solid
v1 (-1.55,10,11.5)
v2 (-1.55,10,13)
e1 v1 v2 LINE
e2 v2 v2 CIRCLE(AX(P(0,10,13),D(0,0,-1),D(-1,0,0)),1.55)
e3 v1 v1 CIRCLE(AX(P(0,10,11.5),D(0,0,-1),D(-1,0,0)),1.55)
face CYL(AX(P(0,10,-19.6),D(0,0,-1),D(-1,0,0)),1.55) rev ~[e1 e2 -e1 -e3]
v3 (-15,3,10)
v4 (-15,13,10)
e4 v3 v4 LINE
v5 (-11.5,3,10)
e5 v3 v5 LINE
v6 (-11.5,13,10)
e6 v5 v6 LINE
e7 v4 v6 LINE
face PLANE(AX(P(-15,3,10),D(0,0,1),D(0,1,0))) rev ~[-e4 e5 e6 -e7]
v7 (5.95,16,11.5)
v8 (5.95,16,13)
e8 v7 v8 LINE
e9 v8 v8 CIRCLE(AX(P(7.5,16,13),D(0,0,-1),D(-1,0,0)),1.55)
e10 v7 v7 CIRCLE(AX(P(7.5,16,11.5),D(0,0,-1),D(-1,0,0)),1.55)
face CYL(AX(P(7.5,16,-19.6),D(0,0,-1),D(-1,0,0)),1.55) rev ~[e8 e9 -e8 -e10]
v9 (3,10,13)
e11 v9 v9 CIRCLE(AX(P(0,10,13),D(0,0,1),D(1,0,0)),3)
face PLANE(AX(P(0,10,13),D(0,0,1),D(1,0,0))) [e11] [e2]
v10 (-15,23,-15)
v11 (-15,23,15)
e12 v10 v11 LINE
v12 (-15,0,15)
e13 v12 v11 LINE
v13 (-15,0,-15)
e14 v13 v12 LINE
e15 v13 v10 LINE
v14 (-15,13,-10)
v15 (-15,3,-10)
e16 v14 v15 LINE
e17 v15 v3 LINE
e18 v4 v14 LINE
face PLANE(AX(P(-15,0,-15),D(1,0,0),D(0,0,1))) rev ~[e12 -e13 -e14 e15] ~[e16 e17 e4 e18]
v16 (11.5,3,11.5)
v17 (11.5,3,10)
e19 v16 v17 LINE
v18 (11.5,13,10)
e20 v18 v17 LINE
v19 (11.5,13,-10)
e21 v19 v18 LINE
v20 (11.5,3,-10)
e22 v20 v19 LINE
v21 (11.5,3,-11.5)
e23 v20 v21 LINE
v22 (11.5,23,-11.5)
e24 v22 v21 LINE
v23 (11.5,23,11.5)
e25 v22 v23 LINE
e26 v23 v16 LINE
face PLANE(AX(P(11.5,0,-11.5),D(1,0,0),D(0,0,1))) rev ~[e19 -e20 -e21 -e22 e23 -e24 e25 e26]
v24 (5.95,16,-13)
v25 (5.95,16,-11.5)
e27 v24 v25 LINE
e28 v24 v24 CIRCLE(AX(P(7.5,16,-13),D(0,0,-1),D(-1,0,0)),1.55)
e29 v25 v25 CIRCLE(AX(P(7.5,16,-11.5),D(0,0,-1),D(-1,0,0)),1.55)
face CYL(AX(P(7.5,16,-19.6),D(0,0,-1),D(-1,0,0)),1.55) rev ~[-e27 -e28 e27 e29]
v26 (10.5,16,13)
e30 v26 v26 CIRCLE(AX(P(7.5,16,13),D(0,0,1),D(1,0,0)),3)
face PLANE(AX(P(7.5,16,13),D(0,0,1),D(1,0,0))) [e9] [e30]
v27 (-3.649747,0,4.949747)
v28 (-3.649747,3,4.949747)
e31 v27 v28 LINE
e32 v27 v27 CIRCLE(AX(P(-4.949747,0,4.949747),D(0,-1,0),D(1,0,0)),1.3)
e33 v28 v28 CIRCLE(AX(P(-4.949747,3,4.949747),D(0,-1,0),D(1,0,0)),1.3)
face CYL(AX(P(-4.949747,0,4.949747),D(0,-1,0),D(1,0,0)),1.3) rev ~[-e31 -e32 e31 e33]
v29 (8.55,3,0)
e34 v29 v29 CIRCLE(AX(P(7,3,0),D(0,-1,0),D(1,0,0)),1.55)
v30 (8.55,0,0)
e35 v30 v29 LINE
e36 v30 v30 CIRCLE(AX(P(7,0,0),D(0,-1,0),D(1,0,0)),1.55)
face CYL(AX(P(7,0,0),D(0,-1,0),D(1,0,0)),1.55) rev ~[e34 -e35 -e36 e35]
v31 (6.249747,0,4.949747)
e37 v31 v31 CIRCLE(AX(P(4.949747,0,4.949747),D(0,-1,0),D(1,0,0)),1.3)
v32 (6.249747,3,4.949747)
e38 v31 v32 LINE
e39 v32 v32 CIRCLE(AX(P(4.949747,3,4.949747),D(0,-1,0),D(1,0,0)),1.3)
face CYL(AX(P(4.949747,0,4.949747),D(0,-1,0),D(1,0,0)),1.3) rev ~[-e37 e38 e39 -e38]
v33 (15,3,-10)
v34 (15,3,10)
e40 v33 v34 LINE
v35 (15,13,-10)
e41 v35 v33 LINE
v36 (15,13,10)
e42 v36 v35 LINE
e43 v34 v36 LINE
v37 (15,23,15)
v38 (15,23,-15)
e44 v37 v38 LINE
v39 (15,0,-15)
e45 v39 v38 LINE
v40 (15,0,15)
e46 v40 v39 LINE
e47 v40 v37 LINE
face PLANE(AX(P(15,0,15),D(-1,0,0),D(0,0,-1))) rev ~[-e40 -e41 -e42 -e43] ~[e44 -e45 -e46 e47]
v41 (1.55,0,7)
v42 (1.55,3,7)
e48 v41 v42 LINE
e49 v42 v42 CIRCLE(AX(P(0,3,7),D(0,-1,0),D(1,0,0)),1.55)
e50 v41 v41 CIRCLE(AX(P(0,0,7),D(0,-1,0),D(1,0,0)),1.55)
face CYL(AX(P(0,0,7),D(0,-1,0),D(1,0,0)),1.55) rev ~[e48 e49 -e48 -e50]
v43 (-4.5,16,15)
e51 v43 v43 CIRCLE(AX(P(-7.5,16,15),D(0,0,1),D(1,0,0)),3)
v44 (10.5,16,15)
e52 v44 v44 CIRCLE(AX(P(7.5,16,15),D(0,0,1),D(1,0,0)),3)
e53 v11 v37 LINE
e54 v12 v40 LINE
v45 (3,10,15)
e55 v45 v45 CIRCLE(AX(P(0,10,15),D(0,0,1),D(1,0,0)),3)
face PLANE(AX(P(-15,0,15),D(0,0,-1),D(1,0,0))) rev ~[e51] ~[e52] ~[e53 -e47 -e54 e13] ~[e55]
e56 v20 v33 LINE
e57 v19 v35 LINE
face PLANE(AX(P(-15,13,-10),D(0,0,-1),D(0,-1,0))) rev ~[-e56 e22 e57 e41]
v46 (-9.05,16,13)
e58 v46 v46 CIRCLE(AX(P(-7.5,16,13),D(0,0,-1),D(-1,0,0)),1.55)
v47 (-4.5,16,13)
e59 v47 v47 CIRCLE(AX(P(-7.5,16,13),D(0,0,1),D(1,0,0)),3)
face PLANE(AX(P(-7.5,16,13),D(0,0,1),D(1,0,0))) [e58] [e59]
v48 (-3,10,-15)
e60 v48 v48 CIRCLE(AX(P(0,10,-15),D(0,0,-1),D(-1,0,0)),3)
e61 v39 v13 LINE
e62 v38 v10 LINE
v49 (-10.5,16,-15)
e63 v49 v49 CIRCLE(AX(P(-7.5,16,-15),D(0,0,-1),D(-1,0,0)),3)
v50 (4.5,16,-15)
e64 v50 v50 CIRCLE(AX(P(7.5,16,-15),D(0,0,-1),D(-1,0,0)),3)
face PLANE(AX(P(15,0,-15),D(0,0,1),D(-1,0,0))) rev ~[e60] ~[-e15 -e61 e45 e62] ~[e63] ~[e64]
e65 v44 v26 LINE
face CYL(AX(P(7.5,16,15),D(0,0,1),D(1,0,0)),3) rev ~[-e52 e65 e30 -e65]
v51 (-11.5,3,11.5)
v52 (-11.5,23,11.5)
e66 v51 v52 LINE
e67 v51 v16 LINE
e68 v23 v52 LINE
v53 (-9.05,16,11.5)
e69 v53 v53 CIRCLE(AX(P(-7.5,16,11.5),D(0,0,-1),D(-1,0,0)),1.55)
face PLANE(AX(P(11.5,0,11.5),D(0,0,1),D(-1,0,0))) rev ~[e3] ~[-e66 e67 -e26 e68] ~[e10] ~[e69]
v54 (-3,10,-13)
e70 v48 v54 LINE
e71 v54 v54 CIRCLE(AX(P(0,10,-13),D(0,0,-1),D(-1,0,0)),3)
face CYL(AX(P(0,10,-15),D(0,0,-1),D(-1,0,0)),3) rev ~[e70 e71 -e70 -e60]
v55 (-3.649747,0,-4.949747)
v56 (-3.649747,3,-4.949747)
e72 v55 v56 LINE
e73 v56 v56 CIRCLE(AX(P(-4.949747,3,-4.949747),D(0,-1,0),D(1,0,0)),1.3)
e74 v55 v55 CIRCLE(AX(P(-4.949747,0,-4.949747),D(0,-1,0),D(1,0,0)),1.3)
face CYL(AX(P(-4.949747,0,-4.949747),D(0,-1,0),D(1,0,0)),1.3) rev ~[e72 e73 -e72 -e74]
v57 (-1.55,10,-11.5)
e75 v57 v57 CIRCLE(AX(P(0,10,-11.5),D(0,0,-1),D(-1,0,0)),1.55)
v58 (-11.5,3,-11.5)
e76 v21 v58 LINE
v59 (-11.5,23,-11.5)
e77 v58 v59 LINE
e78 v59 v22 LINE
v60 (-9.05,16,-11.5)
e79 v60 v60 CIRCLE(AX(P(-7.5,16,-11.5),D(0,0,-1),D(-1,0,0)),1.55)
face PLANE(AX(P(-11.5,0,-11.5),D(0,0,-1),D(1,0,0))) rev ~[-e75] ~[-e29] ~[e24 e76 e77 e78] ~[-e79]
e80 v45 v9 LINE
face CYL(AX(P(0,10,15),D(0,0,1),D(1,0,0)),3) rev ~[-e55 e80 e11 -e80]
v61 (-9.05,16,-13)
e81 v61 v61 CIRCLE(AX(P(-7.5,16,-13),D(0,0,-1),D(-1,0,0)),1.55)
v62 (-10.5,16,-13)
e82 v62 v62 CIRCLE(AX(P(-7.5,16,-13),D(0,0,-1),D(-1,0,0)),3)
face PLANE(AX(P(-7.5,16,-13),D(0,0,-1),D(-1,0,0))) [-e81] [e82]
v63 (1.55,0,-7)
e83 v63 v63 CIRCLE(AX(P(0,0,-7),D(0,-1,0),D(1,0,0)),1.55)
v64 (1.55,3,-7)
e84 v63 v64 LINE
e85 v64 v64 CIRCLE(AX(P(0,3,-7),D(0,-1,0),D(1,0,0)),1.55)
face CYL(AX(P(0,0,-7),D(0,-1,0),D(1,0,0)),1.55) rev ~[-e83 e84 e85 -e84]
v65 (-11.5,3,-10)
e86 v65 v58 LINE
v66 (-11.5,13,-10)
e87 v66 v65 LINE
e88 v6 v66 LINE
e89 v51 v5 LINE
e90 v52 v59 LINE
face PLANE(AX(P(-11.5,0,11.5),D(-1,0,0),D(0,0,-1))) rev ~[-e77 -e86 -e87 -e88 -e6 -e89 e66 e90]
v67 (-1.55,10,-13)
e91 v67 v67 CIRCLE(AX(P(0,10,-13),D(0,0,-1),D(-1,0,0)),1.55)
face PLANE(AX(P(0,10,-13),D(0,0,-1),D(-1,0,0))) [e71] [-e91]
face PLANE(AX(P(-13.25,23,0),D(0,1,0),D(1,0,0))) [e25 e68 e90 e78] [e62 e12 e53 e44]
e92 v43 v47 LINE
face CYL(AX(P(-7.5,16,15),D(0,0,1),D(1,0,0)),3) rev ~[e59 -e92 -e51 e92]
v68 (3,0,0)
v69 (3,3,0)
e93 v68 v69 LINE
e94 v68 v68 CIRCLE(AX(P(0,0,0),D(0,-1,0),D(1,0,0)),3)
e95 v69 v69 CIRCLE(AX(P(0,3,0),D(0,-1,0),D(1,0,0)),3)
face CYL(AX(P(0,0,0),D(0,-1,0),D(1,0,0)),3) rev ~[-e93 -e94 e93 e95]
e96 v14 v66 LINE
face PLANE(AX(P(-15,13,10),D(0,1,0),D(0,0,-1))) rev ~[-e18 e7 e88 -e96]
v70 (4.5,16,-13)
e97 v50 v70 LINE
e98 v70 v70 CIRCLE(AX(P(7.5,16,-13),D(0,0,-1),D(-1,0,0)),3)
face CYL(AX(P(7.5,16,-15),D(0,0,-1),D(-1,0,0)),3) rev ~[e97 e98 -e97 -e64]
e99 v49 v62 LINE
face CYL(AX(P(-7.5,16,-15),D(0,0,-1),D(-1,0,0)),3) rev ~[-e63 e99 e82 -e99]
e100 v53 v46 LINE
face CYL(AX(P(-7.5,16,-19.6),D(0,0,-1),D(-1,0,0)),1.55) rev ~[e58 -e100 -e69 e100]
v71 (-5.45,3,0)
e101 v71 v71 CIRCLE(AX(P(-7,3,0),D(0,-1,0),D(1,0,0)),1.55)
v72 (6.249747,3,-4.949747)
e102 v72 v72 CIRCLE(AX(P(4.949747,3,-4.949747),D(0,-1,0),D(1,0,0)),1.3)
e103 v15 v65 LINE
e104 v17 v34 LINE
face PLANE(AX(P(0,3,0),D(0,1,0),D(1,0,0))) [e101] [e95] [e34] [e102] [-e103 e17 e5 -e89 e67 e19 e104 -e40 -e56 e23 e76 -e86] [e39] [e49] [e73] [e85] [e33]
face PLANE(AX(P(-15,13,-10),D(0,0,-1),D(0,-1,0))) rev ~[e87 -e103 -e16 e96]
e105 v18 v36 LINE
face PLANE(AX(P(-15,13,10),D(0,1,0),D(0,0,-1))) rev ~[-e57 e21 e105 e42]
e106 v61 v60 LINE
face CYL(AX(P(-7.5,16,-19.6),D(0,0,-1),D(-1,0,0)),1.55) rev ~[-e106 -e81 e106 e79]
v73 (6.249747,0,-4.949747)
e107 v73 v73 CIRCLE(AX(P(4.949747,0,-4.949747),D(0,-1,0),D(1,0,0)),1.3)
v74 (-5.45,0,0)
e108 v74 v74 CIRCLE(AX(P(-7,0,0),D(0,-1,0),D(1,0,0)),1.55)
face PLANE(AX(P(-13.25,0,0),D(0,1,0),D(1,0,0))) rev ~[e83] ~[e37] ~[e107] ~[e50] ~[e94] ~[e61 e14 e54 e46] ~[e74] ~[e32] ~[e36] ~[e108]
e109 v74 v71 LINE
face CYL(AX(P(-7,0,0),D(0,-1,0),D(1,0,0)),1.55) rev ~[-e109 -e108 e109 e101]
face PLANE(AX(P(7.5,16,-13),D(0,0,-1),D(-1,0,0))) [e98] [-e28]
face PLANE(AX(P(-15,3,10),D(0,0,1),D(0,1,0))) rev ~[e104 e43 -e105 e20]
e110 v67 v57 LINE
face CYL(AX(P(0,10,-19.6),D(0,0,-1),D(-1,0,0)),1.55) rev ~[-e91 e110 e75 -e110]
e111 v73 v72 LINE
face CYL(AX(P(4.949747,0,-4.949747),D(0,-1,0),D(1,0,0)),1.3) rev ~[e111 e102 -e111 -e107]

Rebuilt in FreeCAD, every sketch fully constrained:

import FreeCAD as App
import Part
import Sketcher

V = App.Vector


def add_polygon(sketch, points):
    """Adds a closed chain of lines whose ends are joined by coincident constraints."""
    first, n = sketch.GeometryCount, len(points)
    for a, b in zip(points, points[1:] + points[:1]):
        sketch.addGeometry(Part.LineSegment(App.Vector(*a, 0), App.Vector(*b, 0)), False)
    for i in range(n):
        sketch.addConstraint(Sketcher.Constraint("Coincident", first + i, 2, first + (i + 1) % n, 1))

doc = App.newDocument("Part")
body = doc.addObject("PartDesign::Body", "Body")

sketch1 = body.newObject("Sketcher::SketchObject", "Sketch")
sketch1.AttachmentSupport = (doc.getObject("XZ_Plane"), [""])
sketch1.MapMode = "FlatFace"
add_polygon(sketch1, [(-12, -15), (-12, 15), (12, 15), (12, -15)])
sketch1.addConstraint(Sketcher.Constraint("Vertical", 0))
sketch1.addConstraint(Sketcher.Constraint("Horizontal", 1))
sketch1.addConstraint(Sketcher.Constraint("Vertical", 2))
sketch1.addConstraint(Sketcher.Constraint("Horizontal", 3))
sketch1.addConstraint(Sketcher.Constraint("Symmetric", 0, 2, 2, 2, -1, 1))
sketch1.addConstraint(Sketcher.Constraint("DistanceX", 1, 1, 1, 2, 23.0))
sketch1.addConstraint(Sketcher.Constraint("DistanceY", 0, 1, 0, 2, 30.0))
pad1 = body.newObject("PartDesign::Pad", "Pad")
pad1.Profile = sketch1
pad1.Length = 3
pad1.Reversed = True
body2 = doc.addObject("PartDesign::Body", "Body001")

sketch2 = body2.newObject("Sketcher::SketchObject", "Sketch001")
sketch2.AttachmentSupport = (doc.getObject("XZ_Plane001"), [""])
sketch2.MapMode = "FlatFace"
add_polygon(sketch2, [(11.5, 15), (11.5, 11.5), (-11.5, 11.5), (-11.5, 15)])
sketch2.addConstraint(Sketcher.Constraint("Vertical", 0))
sketch2.addConstraint(Sketcher.Constraint("Horizontal", 1))
sketch2.addConstraint(Sketcher.Constraint("Vertical", 2))
sketch2.addConstraint(Sketcher.Constraint("Horizontal", 3))
sketch2.addConstraint(Sketcher.Constraint("DistanceX", 1, 2, 1, 1, 23.0))
sketch2.addConstraint(Sketcher.Constraint("DistanceY", 0, 2, 0, 1, 3.5))
sketch2.addConstraint(Sketcher.Constraint("DistanceY", -1, 1, 2, 2, 15.0))
sketch2.addConstraint(Sketcher.Constraint("DistanceX", -1, 1, 0, 2, 11.5))
pad2 = body2.newObject("PartDesign::Pad", "Pad001")
pad2.Profile = sketch2
pad2.Length = 18
pad2.Reversed = True
body3 = doc.addObject("PartDesign::Body", "Body002")

sketch3 = body3.newObject("Sketcher::SketchObject", "Sketch002")
sketch3.AttachmentSupport = (doc.getObject("XZ_Plane002"), [""])
sketch3.MapMode = "FlatFace"
add_polygon(sketch3, [(-11.5, -11.5), (11.5, -11.5), (11.5, -15), (-11.5, -15)])
sketch3.addConstraint(Sketcher.Constraint("Horizontal", 0))
sketch3.addConstraint(Sketcher.Constraint("Vertical", 1))
sketch3.addConstraint(Sketcher.Constraint("Horizontal", 2))
sketch3.addConstraint(Sketcher.Constraint("Vertical", 3))
sketch3.addConstraint(Sketcher.Constraint("DistanceX", 0, 1, 0, 2, 23.0))
sketch3.addConstraint(Sketcher.Constraint("DistanceY", 1, 2, 1, 1, 3.5))
sketch3.addConstraint(Sketcher.Constraint("DistanceY", 1, 2, -1, 1, 15.0))
sketch3.addConstraint(Sketcher.Constraint("DistanceX", -1, 1, 0, 2, 11.5))
pad3 = body3.newObject("PartDesign::Pad", "Pad002")
pad3.Profile = sketch3
pad3.Length = 18
pad3.Reversed = True
doc.recompute()

boolean = body.newObject("PartDesign::Boolean", "Boolean")
boolean.Type = "Fuse"
boolean.addObjects([body2])
doc.recompute()

boolean2 = body.newObject("PartDesign::Boolean", "Boolean001")
boolean2.Type = "Fuse"
boolean2.addObjects([body3])

sketch4 = body.newObject("Sketcher::SketchObject", "Sketch003")
sketch4.AttachmentSupport = (doc.getObject("XZ_Plane"), [""])
sketch4.MapMode = "FlatFace"
add_polygon(sketch4, [(15, -15), (-15, -15), (-15, 15), (15, 15)])
add_polygon(sketch4, [(12, 12), (-12, 12), (-12, -12), (12, -12)])
sketch4.addConstraint(Sketcher.Constraint("Horizontal", 0))
sketch4.addConstraint(Sketcher.Constraint("Vertical", 1))
sketch4.addConstraint(Sketcher.Constraint("Horizontal", 2))
sketch4.addConstraint(Sketcher.Constraint("Vertical", 3))
sketch4.addConstraint(Sketcher.Constraint("Horizontal", 4))
sketch4.addConstraint(Sketcher.Constraint("Vertical", 5))
sketch4.addConstraint(Sketcher.Constraint("Horizontal", 6))
sketch4.addConstraint(Sketcher.Constraint("Vertical", 7))
sketch4.addConstraint(Sketcher.Constraint("Symmetric", 0, 2, 2, 2, -1, 1))
sketch4.addConstraint(Sketcher.Constraint("Symmetric", 4, 2, 6, 2, -1, 1))
sketch4.addConstraint(Sketcher.Constraint("Equal", 2, 1))
sketch4.addConstraint(Sketcher.Constraint("Equal", 6, 5))
sketch4.addConstraint(Sketcher.Constraint("DistanceX", 0, 2, 0, 1, 30.0))
sketch4.addConstraint(Sketcher.Constraint("DistanceX", 4, 2, 4, 1, 23.0))
pad4 = body.newObject("PartDesign::Pad", "Pad003")
pad4.Profile = sketch4
pad4.Length = 23
pad4.Reversed = True

sketch5 = body.newObject("Sketcher::SketchObject", "Sketch004")
sketch5.AttachmentSupport = (doc.getObject("XY_Plane"), [""])
sketch5.MapMode = "FlatFace"
sketch5.AttachmentOffset = App.Placement(V(0, 0, -19.6), App.Rotation())
sketch5.addGeometry(Part.Circle(V(0, 10, 0), V(0, 0, 1), 1.6), False)
sketch5.addGeometry(Part.Circle(V(7.5, 16, 0), V(0, 0, 1), 1.6), False)
sketch5.addGeometry(Part.Circle(V(-7.5, 16, 0), V(0, 0, 1), 1.6), False)
sketch5.addConstraint(Sketcher.Constraint("Equal", 0, 1))
sketch5.addConstraint(Sketcher.Constraint("Equal", 1, 2))
sketch5.addConstraint(Sketcher.Constraint("Symmetric", 1, 3, 2, 3, -2))
sketch5.addConstraint(Sketcher.Constraint("PointOnObject", 0, 3, -2))
sketch5.addConstraint(Sketcher.Constraint("Diameter", 0, 3.1))
sketch5.addConstraint(Sketcher.Constraint("DistanceY", -1, 1, 0, 3, 10.0))
sketch5.addConstraint(Sketcher.Constraint("DistanceY", -1, 1, 1, 3, 16.0))
sketch5.addConstraint(Sketcher.Constraint("DistanceX", 2, 3, 1, 3, 15.0))
pocket1 = body.newObject("PartDesign::Pocket", "Pocket")
pocket1.Profile = sketch5
pocket1.Type = "ThroughAll"
pocket1.Reversed = True

sketch6 = body.newObject("Sketcher::SketchObject", "Sketch005")
sketch6.AttachmentSupport = (doc.getObject("YZ_Plane"), [""])
sketch6.MapMode = "FlatFace"
sketch6.AttachmentOffset = App.Placement(V(0, 0, -15), App.Rotation())
add_polygon(sketch6, [(3, 10), (13, 10), (13, -10), (3, -10)])
sketch6.addConstraint(Sketcher.Constraint("Horizontal", 0))
sketch6.addConstraint(Sketcher.Constraint("Vertical", 1))
sketch6.addConstraint(Sketcher.Constraint("Horizontal", 2))
sketch6.addConstraint(Sketcher.Constraint("Vertical", 3))
sketch6.addConstraint(Sketcher.Constraint("DistanceX", 0, 1, 0, 2, 10.0))
sketch6.addConstraint(Sketcher.Constraint("DistanceY", 1, 2, 1, 1, 20.0))
sketch6.addConstraint(Sketcher.Constraint("DistanceX", -1, 1, 0, 2, 13.0))
sketch6.addConstraint(Sketcher.Constraint("DistanceY", -1, 1, 0, 2, 10.0))
pocket2 = body.newObject("PartDesign::Pocket", "Pocket001")
pocket2.Profile = sketch6
pocket2.Type = "ThroughAll"
pocket2.Reversed = True

sketch7 = body.newObject("Sketcher::SketchObject", "Sketch006")
sketch7.AttachmentSupport = (doc.getObject("XZ_Plane"), [""])
sketch7.MapMode = "FlatFace"
sketch7.addGeometry(Part.Circle(V(-4.9, -4.9, 0), V(0, 0, 1), 1.3), False)
sketch7.addGeometry(Part.Circle(V(4.9, -4.9, 0), V(0, 0, 1), 1.3), False)
sketch7.addGeometry(Part.Circle(V(4.9, 4.9, 0), V(0, 0, 1), 1.3), False)
sketch7.addGeometry(Part.Circle(V(-4.9, 4.9, 0), V(0, 0, 1), 1.3), False)
sketch7.addGeometry(Part.Circle(V(0, 0, 0), V(0, 0, 1), 3), False)
sketch7.addGeometry(Part.Circle(V(7, 0, 0), V(0, 0, 1), 1.6), False)
sketch7.addGeometry(Part.Circle(V(0, 7, 0), V(0, 0, 1), 1.6), False)
sketch7.addGeometry(Part.Circle(V(0, -7, 0), V(0, 0, 1), 1.6), False)
sketch7.addGeometry(Part.Circle(V(-7, 0, 0), V(0, 0, 1), 1.6), False)
sketch7.addConstraint(Sketcher.Constraint("Coincident", 4, 3, -1, 1))
sketch7.addConstraint(Sketcher.Constraint("Equal", 0, 1))
sketch7.addConstraint(Sketcher.Constraint("Equal", 1, 2))
sketch7.addConstraint(Sketcher.Constraint("Equal", 2, 3))
sketch7.addConstraint(Sketcher.Constraint("Equal", 5, 6))
sketch7.addConstraint(Sketcher.Constraint("Equal", 6, 7))
sketch7.addConstraint(Sketcher.Constraint("Equal", 7, 8))
sketch7.addConstraint(Sketcher.Constraint("Symmetric", 0, 3, 2, 3, -1, 1))
sketch7.addConstraint(Sketcher.Constraint("Symmetric", 1, 3, 3, 3, -1, 1))
sketch7.addConstraint(Sketcher.Constraint("Symmetric", 6, 3, 7, 3, -1, 1))
sketch7.addConstraint(Sketcher.Constraint("Symmetric", 5, 3, 8, 3, -1, 1))
sketch7.addConstraint(Sketcher.Constraint("Symmetric", 0, 3, 1, 3, -2))
sketch7.addConstraint(Sketcher.Constraint("PointOnObject", 5, 3, -1))
sketch7.addConstraint(Sketcher.Constraint("PointOnObject", 6, 3, -2))
sketch7.addConstraint(Sketcher.Constraint("Diameter", 4, 6.0))
sketch7.addConstraint(Sketcher.Constraint("Diameter", 0, 2.6))
sketch7.addConstraint(Sketcher.Constraint("Diameter", 5, 3.1))
sketch7.addConstraint(Sketcher.Constraint("DistanceX", -1, 1, 5, 3, 7.0))
sketch7.addConstraint(Sketcher.Constraint("DistanceY", -1, 1, 6, 3, 7.0))
sketch7.addConstraint(Sketcher.Constraint("DistanceX", 0, 3, -1, 1, 4.949747))
sketch7.addConstraint(Sketcher.Constraint("DistanceY", 0, 3, -1, 1, 4.949747))
pocket3 = body.newObject("PartDesign::Pocket", "Pocket002")
pocket3.Profile = sketch7
pocket3.Type = "ThroughAll"

sketch8 = body.newObject("Sketcher::SketchObject", "Sketch007")
sketch8.AttachmentSupport = (doc.getObject("XY_Plane"), [""])
sketch8.MapMode = "FlatFace"
sketch8.AttachmentOffset = App.Placement(V(0, 0, -15), App.Rotation())
sketch8.addGeometry(Part.Circle(V(-7.5, 16, 0), V(0, 0, 1), 3), False)
sketch8.addGeometry(Part.Circle(V(0, 10, 0), V(0, 0, 1), 3), False)
sketch8.addGeometry(Part.Circle(V(7.5, 16, 0), V(0, 0, 1), 3), False)
sketch8.addConstraint(Sketcher.Constraint("Equal", 0, 1))
sketch8.addConstraint(Sketcher.Constraint("Equal", 1, 2))
sketch8.addConstraint(Sketcher.Constraint("Symmetric", 0, 3, 2, 3, -2))
sketch8.addConstraint(Sketcher.Constraint("PointOnObject", 1, 3, -2))
sketch8.addConstraint(Sketcher.Constraint("Diameter", 0, 6.0))
sketch8.addConstraint(Sketcher.Constraint("DistanceY", -1, 1, 0, 3, 16.0))
sketch8.addConstraint(Sketcher.Constraint("DistanceY", -1, 1, 1, 3, 10.0))
sketch8.addConstraint(Sketcher.Constraint("DistanceX", 0, 3, 2, 3, 15.0))
pocket4 = body.newObject("PartDesign::Pocket", "Pocket003")
pocket4.Profile = sketch8
pocket4.Length = 2
pocket4.Reversed = True

sketch9 = body.newObject("Sketcher::SketchObject", "Sketch008")
sketch9.AttachmentSupport = (doc.getObject("XY_Plane"), [""])
sketch9.MapMode = "FlatFace"
sketch9.AttachmentOffset = App.Placement(V(0, 0, 15), App.Rotation())
sketch9.addGeometry(Part.Circle(V(-7.5, 16, 0), V(0, 0, 1), 3), False)
sketch9.addGeometry(Part.Circle(V(0, 10, 0), V(0, 0, 1), 3), False)
sketch9.addGeometry(Part.Circle(V(7.5, 16, 0), V(0, 0, 1), 3), False)
sketch9.addConstraint(Sketcher.Constraint("Equal", 0, 1))
sketch9.addConstraint(Sketcher.Constraint("Equal", 1, 2))
sketch9.addConstraint(Sketcher.Constraint("Symmetric", 0, 3, 2, 3, -2))
sketch9.addConstraint(Sketcher.Constraint("PointOnObject", 1, 3, -2))
sketch9.addConstraint(Sketcher.Constraint("Diameter", 0, 6.0))
sketch9.addConstraint(Sketcher.Constraint("DistanceY", -1, 1, 0, 3, 16.0))
sketch9.addConstraint(Sketcher.Constraint("DistanceY", -1, 1, 1, 3, 10.0))
sketch9.addConstraint(Sketcher.Constraint("DistanceX", 0, 3, 2, 3, 15.0))
pocket5 = body.newObject("PartDesign::Pocket", "Pocket004")
pocket5.Profile = sketch9
pocket5.Length = 2

doc.recompute()
